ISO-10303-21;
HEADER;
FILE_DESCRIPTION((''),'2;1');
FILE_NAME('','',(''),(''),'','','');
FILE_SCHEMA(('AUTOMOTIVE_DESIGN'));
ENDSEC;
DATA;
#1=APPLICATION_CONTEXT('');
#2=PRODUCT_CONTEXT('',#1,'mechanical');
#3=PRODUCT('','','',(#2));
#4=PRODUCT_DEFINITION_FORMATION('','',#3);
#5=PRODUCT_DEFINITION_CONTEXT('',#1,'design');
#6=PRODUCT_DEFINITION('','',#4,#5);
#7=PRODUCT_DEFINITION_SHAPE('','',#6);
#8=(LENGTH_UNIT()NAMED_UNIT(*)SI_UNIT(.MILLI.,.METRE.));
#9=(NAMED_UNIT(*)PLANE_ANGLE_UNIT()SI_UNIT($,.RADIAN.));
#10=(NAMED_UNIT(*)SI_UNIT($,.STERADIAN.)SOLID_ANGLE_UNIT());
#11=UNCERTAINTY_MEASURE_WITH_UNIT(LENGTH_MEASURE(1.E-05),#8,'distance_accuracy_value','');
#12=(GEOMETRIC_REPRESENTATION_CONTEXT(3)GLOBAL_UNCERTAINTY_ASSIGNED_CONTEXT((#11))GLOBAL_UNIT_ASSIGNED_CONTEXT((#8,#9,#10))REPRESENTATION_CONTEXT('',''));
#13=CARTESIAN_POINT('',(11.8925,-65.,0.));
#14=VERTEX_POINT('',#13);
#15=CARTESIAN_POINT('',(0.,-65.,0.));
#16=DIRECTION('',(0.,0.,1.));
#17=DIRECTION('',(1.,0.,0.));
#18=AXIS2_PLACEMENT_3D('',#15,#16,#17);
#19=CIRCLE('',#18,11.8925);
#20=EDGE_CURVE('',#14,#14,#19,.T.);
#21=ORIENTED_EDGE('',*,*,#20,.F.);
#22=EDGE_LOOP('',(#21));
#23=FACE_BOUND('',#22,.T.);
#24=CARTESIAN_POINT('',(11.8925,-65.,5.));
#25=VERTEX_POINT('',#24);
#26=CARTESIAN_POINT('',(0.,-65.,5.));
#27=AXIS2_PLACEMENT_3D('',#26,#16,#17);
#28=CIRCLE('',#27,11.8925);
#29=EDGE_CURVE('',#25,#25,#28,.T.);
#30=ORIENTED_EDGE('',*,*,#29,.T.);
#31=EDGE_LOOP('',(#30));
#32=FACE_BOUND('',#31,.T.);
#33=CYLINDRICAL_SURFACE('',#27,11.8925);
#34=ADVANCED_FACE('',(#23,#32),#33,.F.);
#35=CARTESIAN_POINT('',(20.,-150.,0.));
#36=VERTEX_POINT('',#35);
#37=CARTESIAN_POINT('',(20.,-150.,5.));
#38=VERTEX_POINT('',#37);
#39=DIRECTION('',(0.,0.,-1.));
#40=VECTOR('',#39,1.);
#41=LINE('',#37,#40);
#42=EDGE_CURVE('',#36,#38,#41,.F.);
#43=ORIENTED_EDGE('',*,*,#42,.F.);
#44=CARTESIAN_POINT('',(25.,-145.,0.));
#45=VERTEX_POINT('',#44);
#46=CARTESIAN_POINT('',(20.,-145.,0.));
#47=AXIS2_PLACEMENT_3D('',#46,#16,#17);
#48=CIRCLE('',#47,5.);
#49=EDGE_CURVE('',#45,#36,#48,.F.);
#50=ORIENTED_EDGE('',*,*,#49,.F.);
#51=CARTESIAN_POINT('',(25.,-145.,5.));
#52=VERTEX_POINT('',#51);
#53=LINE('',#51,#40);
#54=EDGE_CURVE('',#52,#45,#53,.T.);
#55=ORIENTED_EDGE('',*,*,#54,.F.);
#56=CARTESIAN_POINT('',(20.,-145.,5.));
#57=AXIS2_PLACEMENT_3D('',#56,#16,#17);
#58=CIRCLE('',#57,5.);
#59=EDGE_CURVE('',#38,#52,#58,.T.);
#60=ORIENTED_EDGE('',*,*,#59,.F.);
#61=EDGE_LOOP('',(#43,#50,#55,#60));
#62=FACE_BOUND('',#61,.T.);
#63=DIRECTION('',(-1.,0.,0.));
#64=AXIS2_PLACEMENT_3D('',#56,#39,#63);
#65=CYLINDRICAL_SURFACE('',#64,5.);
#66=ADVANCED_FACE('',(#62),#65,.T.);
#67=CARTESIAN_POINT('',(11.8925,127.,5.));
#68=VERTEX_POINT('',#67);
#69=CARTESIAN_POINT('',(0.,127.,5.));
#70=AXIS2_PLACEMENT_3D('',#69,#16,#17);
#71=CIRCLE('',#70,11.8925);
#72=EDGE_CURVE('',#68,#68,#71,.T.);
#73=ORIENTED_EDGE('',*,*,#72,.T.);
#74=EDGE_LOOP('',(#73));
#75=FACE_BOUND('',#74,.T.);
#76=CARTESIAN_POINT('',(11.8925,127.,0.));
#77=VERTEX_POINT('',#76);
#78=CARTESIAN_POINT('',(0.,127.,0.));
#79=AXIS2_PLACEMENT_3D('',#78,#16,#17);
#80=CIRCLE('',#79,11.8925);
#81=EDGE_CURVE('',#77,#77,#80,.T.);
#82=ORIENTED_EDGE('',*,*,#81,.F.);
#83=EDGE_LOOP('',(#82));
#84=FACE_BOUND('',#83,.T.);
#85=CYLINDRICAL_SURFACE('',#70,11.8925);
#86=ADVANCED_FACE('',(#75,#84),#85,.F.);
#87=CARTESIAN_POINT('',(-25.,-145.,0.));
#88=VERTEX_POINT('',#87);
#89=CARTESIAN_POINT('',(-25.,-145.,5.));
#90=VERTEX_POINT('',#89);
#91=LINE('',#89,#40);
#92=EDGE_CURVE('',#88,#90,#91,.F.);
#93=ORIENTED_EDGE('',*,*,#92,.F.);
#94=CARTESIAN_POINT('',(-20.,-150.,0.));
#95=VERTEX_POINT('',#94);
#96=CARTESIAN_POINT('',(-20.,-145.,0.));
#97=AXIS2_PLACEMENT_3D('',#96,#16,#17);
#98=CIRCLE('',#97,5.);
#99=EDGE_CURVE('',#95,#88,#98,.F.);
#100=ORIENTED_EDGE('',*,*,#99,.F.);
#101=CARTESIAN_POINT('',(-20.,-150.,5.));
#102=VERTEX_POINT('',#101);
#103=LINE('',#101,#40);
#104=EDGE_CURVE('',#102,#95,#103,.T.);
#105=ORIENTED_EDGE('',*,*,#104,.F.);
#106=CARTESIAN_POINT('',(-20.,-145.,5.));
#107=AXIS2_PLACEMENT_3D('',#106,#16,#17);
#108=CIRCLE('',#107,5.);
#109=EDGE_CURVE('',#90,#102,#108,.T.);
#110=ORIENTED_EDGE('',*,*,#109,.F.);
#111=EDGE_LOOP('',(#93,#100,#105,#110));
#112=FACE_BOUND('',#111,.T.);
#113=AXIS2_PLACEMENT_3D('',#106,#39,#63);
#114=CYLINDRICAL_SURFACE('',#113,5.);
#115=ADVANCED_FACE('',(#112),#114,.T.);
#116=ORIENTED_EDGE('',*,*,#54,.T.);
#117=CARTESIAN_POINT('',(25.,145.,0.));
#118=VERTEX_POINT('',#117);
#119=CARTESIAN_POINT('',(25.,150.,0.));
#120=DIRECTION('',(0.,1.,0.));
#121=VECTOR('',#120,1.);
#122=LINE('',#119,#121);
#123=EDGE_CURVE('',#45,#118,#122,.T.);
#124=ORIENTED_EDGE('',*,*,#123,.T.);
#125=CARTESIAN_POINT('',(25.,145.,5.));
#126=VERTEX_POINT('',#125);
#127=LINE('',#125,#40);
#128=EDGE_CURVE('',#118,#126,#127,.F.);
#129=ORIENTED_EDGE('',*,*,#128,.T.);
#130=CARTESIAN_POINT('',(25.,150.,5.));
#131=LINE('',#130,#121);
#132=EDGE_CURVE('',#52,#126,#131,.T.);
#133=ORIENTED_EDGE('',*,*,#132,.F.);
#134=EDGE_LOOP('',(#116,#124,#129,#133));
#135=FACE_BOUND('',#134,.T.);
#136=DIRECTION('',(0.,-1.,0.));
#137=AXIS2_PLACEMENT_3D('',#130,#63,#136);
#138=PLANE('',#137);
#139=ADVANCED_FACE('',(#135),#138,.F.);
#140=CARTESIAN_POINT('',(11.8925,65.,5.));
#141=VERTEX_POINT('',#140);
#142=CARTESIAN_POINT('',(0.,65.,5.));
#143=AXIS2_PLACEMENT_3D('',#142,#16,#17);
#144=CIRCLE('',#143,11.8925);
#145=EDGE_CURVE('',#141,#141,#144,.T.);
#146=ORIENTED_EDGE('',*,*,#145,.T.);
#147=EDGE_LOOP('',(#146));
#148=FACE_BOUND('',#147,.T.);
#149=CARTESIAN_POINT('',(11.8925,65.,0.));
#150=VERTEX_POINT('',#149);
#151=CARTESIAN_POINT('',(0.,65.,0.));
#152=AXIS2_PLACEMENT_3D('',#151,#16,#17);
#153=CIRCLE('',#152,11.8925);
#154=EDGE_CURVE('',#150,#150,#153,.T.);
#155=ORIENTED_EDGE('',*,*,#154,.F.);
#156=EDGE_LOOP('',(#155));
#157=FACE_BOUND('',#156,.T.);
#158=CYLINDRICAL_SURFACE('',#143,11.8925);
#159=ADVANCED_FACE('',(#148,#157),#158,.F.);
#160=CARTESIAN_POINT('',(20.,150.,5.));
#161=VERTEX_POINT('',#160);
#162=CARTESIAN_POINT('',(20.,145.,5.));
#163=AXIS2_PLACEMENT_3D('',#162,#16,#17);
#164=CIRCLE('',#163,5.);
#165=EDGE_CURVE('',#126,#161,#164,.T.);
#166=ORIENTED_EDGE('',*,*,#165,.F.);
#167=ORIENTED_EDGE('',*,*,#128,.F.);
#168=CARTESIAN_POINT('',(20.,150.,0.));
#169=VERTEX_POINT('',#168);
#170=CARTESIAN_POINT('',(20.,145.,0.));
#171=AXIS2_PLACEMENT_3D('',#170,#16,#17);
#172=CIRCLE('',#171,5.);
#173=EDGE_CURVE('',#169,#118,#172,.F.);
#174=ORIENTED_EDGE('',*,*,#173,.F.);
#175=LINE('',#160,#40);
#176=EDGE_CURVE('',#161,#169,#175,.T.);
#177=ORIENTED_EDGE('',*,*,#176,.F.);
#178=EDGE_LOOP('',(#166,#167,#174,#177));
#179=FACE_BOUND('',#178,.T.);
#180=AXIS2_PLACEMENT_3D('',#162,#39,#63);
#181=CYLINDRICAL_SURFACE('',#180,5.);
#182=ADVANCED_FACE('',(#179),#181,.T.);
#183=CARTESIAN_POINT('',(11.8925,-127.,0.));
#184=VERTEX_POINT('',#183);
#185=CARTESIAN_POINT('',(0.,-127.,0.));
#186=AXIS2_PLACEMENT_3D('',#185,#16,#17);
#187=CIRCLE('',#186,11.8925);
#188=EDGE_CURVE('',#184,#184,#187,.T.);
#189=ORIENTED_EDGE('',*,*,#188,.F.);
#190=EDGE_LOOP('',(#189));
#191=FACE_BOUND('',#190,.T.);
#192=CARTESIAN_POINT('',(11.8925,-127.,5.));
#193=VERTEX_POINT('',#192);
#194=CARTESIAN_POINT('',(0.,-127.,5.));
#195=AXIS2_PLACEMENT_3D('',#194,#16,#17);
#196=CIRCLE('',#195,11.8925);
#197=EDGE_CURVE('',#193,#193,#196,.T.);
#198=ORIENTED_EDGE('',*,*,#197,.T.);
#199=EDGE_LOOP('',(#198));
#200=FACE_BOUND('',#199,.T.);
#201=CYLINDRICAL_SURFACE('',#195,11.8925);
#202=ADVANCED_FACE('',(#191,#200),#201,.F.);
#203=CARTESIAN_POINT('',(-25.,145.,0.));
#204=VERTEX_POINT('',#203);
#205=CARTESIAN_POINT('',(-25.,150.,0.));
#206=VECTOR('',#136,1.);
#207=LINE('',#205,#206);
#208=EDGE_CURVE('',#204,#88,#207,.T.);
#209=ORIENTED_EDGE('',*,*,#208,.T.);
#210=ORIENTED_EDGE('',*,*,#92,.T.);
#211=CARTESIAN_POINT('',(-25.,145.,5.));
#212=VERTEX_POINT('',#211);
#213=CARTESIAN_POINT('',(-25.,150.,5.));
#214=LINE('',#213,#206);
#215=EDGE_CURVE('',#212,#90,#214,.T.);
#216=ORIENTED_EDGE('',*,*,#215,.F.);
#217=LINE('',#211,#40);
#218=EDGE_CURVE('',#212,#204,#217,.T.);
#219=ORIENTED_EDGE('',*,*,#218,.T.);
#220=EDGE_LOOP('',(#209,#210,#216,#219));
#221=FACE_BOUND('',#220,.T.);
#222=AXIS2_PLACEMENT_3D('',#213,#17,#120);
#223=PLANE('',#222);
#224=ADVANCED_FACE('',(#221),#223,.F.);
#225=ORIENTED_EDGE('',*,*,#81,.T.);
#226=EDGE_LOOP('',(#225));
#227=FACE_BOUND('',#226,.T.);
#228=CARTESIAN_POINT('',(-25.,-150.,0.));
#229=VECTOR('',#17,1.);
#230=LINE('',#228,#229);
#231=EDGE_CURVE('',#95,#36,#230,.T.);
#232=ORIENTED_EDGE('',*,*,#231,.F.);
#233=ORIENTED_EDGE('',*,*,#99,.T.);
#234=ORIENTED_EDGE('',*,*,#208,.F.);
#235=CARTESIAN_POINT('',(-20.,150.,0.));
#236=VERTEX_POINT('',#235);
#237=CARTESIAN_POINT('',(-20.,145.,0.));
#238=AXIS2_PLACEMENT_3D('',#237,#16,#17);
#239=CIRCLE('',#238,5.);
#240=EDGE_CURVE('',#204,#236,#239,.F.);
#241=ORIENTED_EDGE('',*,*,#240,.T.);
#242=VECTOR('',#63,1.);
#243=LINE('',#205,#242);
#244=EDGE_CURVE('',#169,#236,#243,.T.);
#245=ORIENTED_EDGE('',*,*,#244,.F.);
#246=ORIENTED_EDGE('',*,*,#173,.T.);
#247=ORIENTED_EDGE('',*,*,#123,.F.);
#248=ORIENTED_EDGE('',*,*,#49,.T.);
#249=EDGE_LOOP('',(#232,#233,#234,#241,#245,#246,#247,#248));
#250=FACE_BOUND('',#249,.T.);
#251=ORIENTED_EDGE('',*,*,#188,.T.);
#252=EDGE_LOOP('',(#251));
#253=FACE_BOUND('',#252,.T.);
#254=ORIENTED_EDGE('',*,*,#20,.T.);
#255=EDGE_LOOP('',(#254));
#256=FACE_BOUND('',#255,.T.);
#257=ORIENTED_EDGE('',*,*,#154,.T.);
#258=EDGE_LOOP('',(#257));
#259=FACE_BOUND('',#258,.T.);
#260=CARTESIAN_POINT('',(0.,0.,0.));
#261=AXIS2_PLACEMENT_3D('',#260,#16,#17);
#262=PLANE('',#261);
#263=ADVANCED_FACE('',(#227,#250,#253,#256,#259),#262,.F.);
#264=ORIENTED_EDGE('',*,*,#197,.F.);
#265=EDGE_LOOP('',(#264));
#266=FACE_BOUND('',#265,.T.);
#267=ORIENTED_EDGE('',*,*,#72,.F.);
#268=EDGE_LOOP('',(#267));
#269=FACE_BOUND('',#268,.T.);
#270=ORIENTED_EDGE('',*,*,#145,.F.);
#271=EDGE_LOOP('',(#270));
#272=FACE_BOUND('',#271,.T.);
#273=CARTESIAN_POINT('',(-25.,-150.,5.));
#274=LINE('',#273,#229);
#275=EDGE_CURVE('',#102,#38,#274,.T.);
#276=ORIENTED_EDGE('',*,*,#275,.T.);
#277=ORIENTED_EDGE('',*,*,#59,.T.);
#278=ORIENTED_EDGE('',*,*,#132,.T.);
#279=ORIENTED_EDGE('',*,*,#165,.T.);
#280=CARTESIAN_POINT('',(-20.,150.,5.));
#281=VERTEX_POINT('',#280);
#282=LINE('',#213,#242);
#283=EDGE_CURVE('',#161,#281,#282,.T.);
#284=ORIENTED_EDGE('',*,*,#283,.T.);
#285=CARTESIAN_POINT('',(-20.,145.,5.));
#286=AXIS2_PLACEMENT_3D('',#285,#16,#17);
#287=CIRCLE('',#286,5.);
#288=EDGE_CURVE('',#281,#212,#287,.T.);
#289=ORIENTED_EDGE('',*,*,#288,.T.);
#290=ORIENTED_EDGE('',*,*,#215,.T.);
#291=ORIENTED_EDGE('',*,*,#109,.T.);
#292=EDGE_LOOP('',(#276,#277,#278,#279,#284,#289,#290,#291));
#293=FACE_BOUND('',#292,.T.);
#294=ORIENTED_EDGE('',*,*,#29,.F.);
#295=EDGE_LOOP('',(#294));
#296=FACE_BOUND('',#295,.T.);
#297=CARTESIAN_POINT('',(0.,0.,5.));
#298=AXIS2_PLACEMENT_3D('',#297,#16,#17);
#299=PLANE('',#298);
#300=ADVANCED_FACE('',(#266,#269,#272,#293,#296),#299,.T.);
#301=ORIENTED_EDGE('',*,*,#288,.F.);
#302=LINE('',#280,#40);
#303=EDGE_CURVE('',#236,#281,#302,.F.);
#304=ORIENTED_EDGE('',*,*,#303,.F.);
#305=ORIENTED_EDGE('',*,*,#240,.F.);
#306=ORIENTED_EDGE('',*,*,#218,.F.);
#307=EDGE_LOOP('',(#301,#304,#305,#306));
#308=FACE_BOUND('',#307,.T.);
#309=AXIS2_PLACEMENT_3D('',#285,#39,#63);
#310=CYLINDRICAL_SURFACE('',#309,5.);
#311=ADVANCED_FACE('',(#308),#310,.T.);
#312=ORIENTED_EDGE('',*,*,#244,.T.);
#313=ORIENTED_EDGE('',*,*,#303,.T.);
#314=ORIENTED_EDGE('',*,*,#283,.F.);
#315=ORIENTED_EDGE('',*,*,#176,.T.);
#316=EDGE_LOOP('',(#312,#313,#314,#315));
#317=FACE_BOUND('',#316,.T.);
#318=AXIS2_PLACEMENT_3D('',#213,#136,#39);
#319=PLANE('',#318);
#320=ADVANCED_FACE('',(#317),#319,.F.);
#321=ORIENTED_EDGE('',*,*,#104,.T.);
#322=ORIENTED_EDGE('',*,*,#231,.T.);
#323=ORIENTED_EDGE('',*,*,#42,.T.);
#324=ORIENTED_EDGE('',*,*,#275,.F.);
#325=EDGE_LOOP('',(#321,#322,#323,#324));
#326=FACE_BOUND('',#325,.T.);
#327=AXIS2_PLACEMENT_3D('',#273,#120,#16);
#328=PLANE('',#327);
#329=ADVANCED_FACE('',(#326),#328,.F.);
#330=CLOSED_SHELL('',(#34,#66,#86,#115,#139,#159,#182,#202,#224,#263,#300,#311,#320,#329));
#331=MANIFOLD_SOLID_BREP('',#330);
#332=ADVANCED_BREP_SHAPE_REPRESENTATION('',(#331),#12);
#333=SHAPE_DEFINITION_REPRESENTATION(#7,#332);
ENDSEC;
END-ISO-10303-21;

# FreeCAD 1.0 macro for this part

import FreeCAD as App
import Part
import Sketcher
from FreeCAD import Vector
Q = App.Units.Quantity


def edges_at(feature, points):
    """Names of the edges that pass closest to the given points."""
    edges = feature.Shape.Edges
    near = lambda p: min(range(len(edges)), key=lambda i: edges[i].distToShape(Part.Vertex(*p))[0])
    return sorted({f"Edge{near(p) + 1}" for p in points})

doc = App.newDocument("Part")
body = doc.addObject("PartDesign::Body", "Body")

# Sketch on XY plane
sketch1 = doc.addObject("Sketcher::SketchObject", "Sketch")
body.addObject(sketch1)
sketch1.AttachmentSupport = (doc.XY_Plane, [""])
sketch1.MapMode = "FlatFace"
sketch1.addGeometry([
    Part.LineSegment(Vector(-25, 150, 0), Vector(-25, -150, 0)),
    Part.LineSegment(Vector(-25, -150, 0), Vector(25, -150, 0)),
    Part.LineSegment(Vector(25, -150, 0), Vector(25, 150, 0)),
    Part.LineSegment(Vector(25, 150, 0), Vector(-25, 150, 0)),
], False)
sketch1.addConstraint([
    Sketcher.Constraint("Coincident", 0, 2, 1, 1),
    Sketcher.Constraint("Coincident", 1, 2, 2, 1),
    Sketcher.Constraint("Coincident", 2, 2, 3, 1),
    Sketcher.Constraint("Coincident", 3, 2, 0, 1),
    Sketcher.Constraint("Vertical", 0),
    Sketcher.Constraint("Horizontal", 1),
    Sketcher.Constraint("Vertical", 2),
    Sketcher.Constraint("Horizontal", 3),
    Sketcher.Constraint("Symmetric", 0, 2, 2, 2, -1, 1),
    Sketcher.Constraint("DistanceX", 1, 1, 1, 2, Q("50 mm")),
    Sketcher.Constraint("DistanceY", 0, 2, 0, 1, Q("300 mm")),
])
pad1 = doc.addObject("PartDesign::Pad", "Pad")
body.addObject(pad1)
pad1.Profile = sketch1
pad1.Length = 5
doc.recompute()

fillet = doc.addObject("PartDesign::Fillet", "Fillet")
body.addObject(fillet)
fillet.Base = (pad1, edges_at(pad1, [
    (-25, 150, 2.5),
    (25, 150, 2.5),
    (25, -150, 2.5),
    (-25, -150, 2.5),
]))
fillet.Radius = 5

# Sketch on XY plane
sketch2 = doc.addObject("Sketcher::SketchObject", "Sketch001")
body.addObject(sketch2)
sketch2.AttachmentSupport = (doc.XY_Plane, [""])
sketch2.MapMode = "FlatFace"
sketch2.AttachmentOffset = App.Placement(Vector(0, 0, 5), App.Rotation())
sketch2.addGeometry([
    Part.Circle(Vector(0, 127, 0), Vector(0, 0, 1), 7),
    Part.Circle(Vector(0, 65, 0), Vector(0, 0, 1), 7),
    Part.Circle(Vector(0, -65, 0), Vector(0, 0, 1), 7),
    Part.Circle(Vector(0, -127, 0), Vector(0, 0, 1), 7),
], False)
sketch2.addConstraint([
    Sketcher.Constraint("Equal", 0, 1),
    Sketcher.Constraint("Equal", 1, 2),
    Sketcher.Constraint("Equal", 2, 3),
    Sketcher.Constraint("Symmetric", 1, 3, 2, 3, -1, 1),
    Sketcher.Constraint("Symmetric", 0, 3, 3, 3, -1, 1),
    Sketcher.Constraint("PointOnObject", 0, 3, -2),
    Sketcher.Constraint("PointOnObject", 1, 3, -2),
    Sketcher.Constraint("Diameter", 0, Q("13.5 mm")),
    Sketcher.Constraint("DistanceY", -1, 1, 0, 3, Q("127 mm")),
    Sketcher.Constraint("DistanceY", -1, 1, 1, 3, Q("65 mm")),
])
doc.recompute()
hole = doc.addObject("PartDesign::Hole", "Hole")
body.addObject(hole)
hole.Profile = sketch2
hole.ThreadType = "None"
hole.Diameter = 13.5
hole.DepthType = "ThroughAll"
hole.HoleCutType = "Counterbore"
hole.HoleCutDiameter = 23.785
hole.HoleCutDepth = 7.5

doc.recompute()
